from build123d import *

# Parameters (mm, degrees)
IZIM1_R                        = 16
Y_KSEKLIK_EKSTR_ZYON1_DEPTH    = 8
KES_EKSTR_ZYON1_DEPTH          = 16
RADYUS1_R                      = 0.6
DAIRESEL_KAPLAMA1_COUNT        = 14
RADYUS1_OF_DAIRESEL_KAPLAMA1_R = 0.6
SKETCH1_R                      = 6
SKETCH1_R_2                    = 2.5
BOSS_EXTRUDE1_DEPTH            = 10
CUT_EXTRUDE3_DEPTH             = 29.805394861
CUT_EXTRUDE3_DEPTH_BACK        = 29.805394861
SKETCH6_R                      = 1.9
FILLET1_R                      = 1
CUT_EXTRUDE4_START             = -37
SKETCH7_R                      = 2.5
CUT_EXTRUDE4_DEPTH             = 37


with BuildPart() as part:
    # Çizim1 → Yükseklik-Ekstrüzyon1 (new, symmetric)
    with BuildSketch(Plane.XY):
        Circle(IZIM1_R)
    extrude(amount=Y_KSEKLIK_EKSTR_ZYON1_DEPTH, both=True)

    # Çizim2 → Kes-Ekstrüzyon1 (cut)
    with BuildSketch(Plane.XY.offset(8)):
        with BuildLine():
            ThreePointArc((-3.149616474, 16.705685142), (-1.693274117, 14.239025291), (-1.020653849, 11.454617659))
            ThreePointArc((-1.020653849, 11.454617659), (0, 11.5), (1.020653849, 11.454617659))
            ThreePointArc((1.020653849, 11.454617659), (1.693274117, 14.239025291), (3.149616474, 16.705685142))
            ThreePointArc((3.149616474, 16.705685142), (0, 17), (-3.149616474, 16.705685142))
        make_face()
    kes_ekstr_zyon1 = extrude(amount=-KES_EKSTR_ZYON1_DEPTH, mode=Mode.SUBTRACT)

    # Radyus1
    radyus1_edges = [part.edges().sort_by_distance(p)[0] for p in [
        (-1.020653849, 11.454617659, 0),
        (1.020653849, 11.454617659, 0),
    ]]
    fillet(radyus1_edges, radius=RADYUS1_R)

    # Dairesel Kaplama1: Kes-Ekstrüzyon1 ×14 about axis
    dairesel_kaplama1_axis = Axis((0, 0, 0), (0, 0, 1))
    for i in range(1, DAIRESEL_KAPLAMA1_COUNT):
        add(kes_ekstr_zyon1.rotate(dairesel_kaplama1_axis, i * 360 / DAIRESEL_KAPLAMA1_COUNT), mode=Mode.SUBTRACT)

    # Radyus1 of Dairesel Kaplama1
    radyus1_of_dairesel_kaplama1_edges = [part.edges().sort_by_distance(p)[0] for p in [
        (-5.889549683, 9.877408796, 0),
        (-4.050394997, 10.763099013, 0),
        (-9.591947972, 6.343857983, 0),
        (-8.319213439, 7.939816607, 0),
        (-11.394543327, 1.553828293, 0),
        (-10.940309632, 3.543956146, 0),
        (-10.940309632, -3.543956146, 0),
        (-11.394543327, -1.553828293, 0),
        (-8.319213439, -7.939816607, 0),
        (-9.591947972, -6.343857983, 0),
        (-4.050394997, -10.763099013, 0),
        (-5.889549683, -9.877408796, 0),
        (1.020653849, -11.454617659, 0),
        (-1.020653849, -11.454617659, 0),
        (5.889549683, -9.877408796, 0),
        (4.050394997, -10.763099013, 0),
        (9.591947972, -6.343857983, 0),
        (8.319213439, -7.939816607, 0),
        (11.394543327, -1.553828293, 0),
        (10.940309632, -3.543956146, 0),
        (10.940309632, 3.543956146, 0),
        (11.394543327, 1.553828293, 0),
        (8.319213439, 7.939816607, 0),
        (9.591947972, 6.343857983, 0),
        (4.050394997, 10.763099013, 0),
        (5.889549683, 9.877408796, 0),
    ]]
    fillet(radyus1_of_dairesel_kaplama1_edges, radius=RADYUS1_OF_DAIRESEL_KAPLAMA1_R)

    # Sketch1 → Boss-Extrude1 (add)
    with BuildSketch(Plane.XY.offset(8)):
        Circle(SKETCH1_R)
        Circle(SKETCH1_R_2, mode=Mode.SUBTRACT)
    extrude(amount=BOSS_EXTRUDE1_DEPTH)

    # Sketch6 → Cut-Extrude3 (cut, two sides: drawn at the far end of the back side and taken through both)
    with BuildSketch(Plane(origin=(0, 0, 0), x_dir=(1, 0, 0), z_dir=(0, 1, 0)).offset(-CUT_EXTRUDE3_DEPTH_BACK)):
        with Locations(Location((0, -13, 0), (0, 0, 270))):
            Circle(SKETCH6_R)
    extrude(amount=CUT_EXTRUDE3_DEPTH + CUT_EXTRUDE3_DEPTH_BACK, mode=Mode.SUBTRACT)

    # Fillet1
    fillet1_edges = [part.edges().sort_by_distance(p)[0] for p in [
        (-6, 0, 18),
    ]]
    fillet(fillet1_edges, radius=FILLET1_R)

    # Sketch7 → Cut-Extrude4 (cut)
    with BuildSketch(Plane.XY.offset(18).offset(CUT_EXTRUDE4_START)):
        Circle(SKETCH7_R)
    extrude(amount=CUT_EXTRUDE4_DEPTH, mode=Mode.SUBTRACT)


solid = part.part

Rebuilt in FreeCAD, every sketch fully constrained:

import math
import FreeCAD as App
import Part
import Sketcher
from FreeCAD import Vector
Q = App.Units.Quantity


def edges_at(feature, points):
    """Names of the edges that pass closest to the given points."""
    edges = feature.Shape.Edges
    near = lambda p: min(range(len(edges)), key=lambda i: edges[i].distToShape(Part.Vertex(*p))[0])
    return sorted({f"Edge{near(p) + 1}" for p in points})

doc = App.newDocument("Part")
body = doc.addObject("PartDesign::Body", "Body")

# Sketch on XY plane
sketch1 = body.newObject("Sketcher::SketchObject", "Sketch")
sketch1.AttachmentSupport = (doc.getObject("XY_Plane"), [""])
sketch1.MapMode = "FlatFace"
sketch1.addGeometry(Part.Circle(Vector(0, 0, 0), Vector(0, 0, 1), 16), False)
sketch1.addConstraint(Sketcher.Constraint("Coincident", 0, 3, -1, 1))
sketch1.addConstraint(Sketcher.Constraint("Diameter", 0, Q("32 mm")))
pad1 = body.newObject("PartDesign::Pad", "Pad")
pad1.Profile = sketch1
pad1.Length = 16
pad1.Midplane = True

# Sketch on XY plane
sketch2 = body.newObject("Sketcher::SketchObject", "Sketch001")
sketch2.AttachmentSupport = (doc.getObject("XY_Plane"), [""])
sketch2.MapMode = "FlatFace"
sketch2.AttachmentOffset = App.Placement(Vector(0, 0, 8), App.Rotation())
sketch2.addGeometry(Part.ArcOfCircle(Part.Circle(Vector(-10.7, 10.6, 0), Vector(0, 0, 1), 9.7), math.radians(5), math.radians(39)), False)
sketch2.addGeometry(Part.ArcOfCircle(Part.Circle(Vector(0, 0, 0), Vector(0, 0, 1), 11.5), math.radians(84.91), math.radians(95.09)), False)
sketch2.addGeometry(Part.ArcOfCircle(Part.Circle(Vector(10.7, 10.6, 0), Vector(0, 0, 1), 9.7), math.radians(141), math.radians(175)), False)
sketch2.addGeometry(Part.ArcOfCircle(Part.Circle(Vector(0, 0, 0), Vector(0, 0, 1), 17), math.radians(79), math.radians(101)), False)
sketch2.addConstraint(Sketcher.Constraint("Coincident", 0, 1, 1, 2))
sketch2.addConstraint(Sketcher.Constraint("Coincident", 1, 1, 2, 2))
sketch2.addConstraint(Sketcher.Constraint("Coincident", 2, 1, 3, 1))
sketch2.addConstraint(Sketcher.Constraint("Coincident", 3, 2, 0, 2))
sketch2.addConstraint(Sketcher.Constraint("Coincident", 1, 3, -1, 1))
sketch2.addConstraint(Sketcher.Constraint("Coincident", 3, 3, -1, 1))
sketch2.addConstraint(Sketcher.Constraint("Equal", 0, 2))
sketch2.addConstraint(Sketcher.Constraint("Symmetric", 0, 3, 2, 3, -2))
sketch2.addConstraint(Sketcher.Constraint("Radius", 3, Q("17 mm")))
sketch2.addConstraint(Sketcher.Constraint("Radius", 1, Q("11.5 mm")))
sketch2.addConstraint(Sketcher.Constraint("Radius", 0, Q("9.702595 mm")))
sketch2.addConstraint(Sketcher.Constraint("DistanceX", 0, 3, -1, 1, Q("10.68496 mm")))
sketch2.addConstraint(Sketcher.Constraint("DistanceY", -1, 1, 0, 3, Q("10.593488 mm")))
pocket1 = body.newObject("PartDesign::Pocket", "Pocket")
pocket1.Profile = sketch2
pocket1.Length = 16
doc.recompute()

fillet = body.newObject("PartDesign::Fillet", "Fillet")
fillet.Base = (pocket1, edges_at(pocket1, [(-1.021, 11.455, 0), (1.021, 11.455, 0)]))
fillet.Radius = 0.6
doc.recompute()

polarpattern = body.newObject("PartDesign::PolarPattern", "PolarPattern")
polarpattern.Originals = [pocket1]
polarpattern.Axis = (doc.getObject("Z_Axis"), [""])
polarpattern.Angle = 360
polarpattern.Occurrences = 14
body.Tip = polarpattern
doc.recompute()

fillet2 = body.newObject("PartDesign::Fillet", "Fillet001")
fillet2.Base = (polarpattern, edges_at(polarpattern, [
    (-5.89, 9.877, 0),
    (-4.05, 10.763, 0),
    (-9.592, 6.344, 0),
    (-8.319, 7.94, 0),
    (-11.395, 1.554, 0),
    (-10.94, 3.544, 0),
    (-10.94, -3.544, 0),
    (-11.395, -1.554, 0),
    (-8.319, -7.94, 0),
    (-9.592, -6.344, 0),
    (-4.05, -10.763, 0),
    (-5.89, -9.877, 0),
    (1.021, -11.455, 0),
    (-1.021, -11.455, 0),
    (5.89, -9.877, 0),
    (4.05, -10.763, 0),
    (9.592, -6.344, 0),
    (8.319, -7.94, 0),
    (11.395, -1.554, 0),
    (10.94, -3.544, 0),
    (10.94, 3.544, 0),
    (11.395, 1.554, 0),
    (8.319, 7.94, 0),
    (9.592, 6.344, 0),
    (4.05, 10.763, 0),
    (5.89, 9.877, 0),
]))
fillet2.Radius = 0.6

# Sketch on XY plane
sketch3 = body.newObject("Sketcher::SketchObject", "Sketch002")
sketch3.AttachmentSupport = (doc.getObject("XY_Plane"), [""])
sketch3.MapMode = "FlatFace"
sketch3.AttachmentOffset = App.Placement(Vector(0, 0, 8), App.Rotation())
sketch3.addGeometry(Part.Circle(Vector(0, 0, 0), Vector(0, 0, 1), 6), False)
sketch3.addGeometry(Part.Circle(Vector(0, 0, 0), Vector(0, 0, 1), 2.5), False)
sketch3.addConstraint(Sketcher.Constraint("Coincident", 0, 3, -1, 1))
sketch3.addConstraint(Sketcher.Constraint("Coincident", 1, 3, -1, 1))
sketch3.addConstraint(Sketcher.Constraint("Diameter", 0, Q("12 mm")))
sketch3.addConstraint(Sketcher.Constraint("Diameter", 1, Q("5 mm")))
pad2 = body.newObject("PartDesign::Pad", "Pad001")
pad2.Profile = sketch3
pad2.Length = 10

# Sketch on XZ plane
sketch4 = body.newObject("Sketcher::SketchObject", "Sketch003")
sketch4.AttachmentSupport = (doc.getObject("XZ_Plane"), [""])
sketch4.MapMode = "FlatFace"
sketch4.addGeometry(Part.Circle(Vector(0, 13, 0), Vector(0, 0, 1), 1.9), False)
sketch4.addConstraint(Sketcher.Constraint("PointOnObject", 0, 3, -2))
sketch4.addConstraint(Sketcher.Constraint("Diameter", 0, Q("3.8 mm")))
sketch4.addConstraint(Sketcher.Constraint("DistanceY", -1, 1, 0, 3, Q("13 mm")))
pocket2 = body.newObject("PartDesign::Pocket", "Pocket001")
pocket2.Profile = sketch4
pocket2.Type = "ThroughAll"
pocket2.Midplane = True
doc.recompute()

fillet3 = body.newObject("PartDesign::Fillet", "Fillet002")
fillet3.Base = (pocket2, edges_at(pocket2, [(-6, 0, 18)]))
fillet3.Radius = 1

# Sketch on XY plane
sketch5 = body.newObject("Sketcher::SketchObject", "Sketch004")
sketch5.AttachmentSupport = (doc.getObject("XY_Plane"), [""])
sketch5.MapMode = "FlatFace"
sketch5.AttachmentOffset = App.Placement(Vector(0, 0, -19), App.Rotation())
sketch5.addGeometry(Part.Circle(Vector(0, 0, 0), Vector(0, 0, 1), 2.5), False)
sketch5.addConstraint(Sketcher.Constraint("Coincident", 0, 3, -1, 1))
sketch5.addConstraint(Sketcher.Constraint("Diameter", 0, Q("5 mm")))
pocket3 = body.newObject("PartDesign::Pocket", "Pocket002")
pocket3.Profile = sketch5
pocket3.Length = 37
pocket3.Reversed = True

doc.recompute()
